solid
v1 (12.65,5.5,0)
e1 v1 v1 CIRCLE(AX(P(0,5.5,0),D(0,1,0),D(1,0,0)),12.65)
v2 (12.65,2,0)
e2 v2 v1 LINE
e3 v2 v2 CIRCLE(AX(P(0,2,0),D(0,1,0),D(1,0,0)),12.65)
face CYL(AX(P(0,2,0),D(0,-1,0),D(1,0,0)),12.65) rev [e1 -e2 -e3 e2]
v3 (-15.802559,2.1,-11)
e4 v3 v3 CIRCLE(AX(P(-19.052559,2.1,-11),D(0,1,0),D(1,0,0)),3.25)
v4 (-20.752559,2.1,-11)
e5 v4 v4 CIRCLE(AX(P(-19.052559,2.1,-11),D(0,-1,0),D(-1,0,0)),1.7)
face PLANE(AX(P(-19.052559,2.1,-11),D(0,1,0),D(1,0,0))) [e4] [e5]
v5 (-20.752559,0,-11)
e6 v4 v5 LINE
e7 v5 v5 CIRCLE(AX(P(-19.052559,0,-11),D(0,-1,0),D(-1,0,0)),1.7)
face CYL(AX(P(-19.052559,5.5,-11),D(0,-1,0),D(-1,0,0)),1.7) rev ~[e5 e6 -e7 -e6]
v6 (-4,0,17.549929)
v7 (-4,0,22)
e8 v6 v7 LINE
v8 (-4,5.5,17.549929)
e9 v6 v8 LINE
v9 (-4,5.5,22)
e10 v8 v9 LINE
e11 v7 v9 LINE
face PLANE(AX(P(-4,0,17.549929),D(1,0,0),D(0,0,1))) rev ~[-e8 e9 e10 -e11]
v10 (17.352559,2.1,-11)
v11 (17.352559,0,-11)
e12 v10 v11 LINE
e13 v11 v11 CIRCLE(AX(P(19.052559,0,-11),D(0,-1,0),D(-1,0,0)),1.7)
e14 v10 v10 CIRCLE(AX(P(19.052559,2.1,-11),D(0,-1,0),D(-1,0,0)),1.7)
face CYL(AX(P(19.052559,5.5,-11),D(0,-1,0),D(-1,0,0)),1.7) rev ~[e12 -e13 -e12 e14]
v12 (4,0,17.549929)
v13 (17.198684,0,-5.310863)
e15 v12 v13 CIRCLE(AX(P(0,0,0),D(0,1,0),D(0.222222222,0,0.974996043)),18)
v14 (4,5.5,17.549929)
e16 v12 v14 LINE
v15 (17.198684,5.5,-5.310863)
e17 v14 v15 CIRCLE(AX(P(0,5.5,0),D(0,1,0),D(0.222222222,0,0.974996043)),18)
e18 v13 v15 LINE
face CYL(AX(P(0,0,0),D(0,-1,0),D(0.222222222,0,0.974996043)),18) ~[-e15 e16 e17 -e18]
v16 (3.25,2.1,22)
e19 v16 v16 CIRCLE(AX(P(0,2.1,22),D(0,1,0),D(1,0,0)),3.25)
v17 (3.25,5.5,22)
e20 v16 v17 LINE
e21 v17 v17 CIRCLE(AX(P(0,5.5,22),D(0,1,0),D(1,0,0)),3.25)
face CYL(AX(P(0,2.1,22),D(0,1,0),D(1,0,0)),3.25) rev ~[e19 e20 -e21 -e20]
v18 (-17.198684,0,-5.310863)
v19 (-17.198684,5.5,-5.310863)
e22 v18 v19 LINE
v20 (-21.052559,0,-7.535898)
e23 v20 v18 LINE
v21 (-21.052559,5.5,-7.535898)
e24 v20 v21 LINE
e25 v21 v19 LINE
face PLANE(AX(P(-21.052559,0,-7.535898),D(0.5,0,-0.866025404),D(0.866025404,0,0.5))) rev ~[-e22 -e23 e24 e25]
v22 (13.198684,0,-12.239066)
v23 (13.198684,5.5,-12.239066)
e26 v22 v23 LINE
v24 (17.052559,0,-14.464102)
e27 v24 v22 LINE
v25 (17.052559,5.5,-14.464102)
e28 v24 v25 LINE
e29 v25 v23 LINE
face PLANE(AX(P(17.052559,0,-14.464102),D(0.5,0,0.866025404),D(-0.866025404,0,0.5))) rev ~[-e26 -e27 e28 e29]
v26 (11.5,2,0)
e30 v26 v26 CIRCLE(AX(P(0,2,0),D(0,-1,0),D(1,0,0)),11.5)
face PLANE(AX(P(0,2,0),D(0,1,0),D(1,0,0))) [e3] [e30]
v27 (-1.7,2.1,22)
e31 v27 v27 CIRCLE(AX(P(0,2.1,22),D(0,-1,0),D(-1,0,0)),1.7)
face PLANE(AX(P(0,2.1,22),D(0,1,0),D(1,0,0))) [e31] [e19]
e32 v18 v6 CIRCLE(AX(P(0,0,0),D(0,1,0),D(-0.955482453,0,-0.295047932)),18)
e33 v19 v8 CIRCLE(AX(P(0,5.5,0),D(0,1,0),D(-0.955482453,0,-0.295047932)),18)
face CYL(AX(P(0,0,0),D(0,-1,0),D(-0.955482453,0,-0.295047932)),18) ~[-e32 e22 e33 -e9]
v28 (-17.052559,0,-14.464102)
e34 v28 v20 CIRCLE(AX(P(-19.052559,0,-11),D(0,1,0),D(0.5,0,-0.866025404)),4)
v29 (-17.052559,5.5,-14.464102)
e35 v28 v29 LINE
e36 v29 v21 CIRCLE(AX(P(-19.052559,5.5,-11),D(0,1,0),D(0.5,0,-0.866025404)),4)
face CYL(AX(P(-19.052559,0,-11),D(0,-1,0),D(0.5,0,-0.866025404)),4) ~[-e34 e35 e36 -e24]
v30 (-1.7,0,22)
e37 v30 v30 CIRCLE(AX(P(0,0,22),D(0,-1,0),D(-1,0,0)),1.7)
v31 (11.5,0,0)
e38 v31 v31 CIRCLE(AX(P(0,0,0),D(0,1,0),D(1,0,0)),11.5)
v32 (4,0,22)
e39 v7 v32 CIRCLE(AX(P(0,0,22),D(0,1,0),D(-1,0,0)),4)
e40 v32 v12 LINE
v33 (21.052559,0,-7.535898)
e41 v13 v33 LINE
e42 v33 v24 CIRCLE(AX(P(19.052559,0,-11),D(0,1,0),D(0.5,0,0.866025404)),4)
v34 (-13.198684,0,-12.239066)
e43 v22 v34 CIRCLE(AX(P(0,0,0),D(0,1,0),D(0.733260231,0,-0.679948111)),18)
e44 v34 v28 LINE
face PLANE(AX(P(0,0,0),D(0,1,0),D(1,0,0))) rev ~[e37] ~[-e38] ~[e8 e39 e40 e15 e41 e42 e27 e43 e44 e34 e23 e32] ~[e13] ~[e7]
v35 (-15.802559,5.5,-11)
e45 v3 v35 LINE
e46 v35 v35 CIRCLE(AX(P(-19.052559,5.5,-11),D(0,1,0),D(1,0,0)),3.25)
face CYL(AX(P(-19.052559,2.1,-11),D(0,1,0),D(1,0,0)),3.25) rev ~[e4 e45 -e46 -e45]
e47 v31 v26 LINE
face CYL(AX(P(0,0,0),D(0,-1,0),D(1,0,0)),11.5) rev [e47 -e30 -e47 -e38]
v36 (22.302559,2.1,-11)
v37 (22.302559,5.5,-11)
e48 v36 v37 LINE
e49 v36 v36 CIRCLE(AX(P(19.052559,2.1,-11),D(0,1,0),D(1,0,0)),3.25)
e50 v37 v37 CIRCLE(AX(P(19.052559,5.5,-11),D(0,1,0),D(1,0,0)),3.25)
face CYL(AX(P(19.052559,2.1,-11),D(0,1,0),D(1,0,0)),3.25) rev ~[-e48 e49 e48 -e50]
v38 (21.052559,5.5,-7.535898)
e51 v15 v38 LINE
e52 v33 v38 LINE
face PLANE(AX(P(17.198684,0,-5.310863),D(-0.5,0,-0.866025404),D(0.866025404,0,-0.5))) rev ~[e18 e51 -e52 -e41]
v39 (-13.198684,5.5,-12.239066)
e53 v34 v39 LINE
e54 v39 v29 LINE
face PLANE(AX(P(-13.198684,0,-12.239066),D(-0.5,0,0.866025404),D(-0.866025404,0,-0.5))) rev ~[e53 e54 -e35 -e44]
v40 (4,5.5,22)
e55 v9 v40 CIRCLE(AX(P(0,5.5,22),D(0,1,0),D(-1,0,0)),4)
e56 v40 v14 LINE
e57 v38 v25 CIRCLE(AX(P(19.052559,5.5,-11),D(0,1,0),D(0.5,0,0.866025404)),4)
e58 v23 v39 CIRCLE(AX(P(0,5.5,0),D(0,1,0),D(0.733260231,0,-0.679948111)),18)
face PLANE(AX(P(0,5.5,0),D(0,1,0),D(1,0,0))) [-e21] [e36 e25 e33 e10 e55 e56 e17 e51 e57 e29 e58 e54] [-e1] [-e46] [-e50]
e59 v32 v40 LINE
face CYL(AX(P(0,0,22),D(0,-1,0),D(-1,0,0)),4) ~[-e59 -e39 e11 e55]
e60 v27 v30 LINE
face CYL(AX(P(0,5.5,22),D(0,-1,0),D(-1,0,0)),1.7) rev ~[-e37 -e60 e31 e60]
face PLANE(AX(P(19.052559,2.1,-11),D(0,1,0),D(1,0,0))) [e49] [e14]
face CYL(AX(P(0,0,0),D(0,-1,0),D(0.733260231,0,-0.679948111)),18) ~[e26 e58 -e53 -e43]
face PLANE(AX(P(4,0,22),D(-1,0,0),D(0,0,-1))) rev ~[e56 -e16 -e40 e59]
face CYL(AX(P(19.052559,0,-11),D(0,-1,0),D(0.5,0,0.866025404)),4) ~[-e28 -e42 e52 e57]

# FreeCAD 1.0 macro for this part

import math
import FreeCAD as App
import Part
import Sketcher
from FreeCAD import Vector
Q = App.Units.Quantity

doc = App.newDocument("Part")
body = doc.addObject("PartDesign::Body", "Body")

sketch1 = body.newObject("Sketcher::SketchObject", "Sketch")
sketch1.AttachmentSupport = (doc.getObject("XZ_Plane"), [""])
sketch1.MapMode = "FlatFace"
sketch1.addGeometry(Part.ArcOfCircle(Part.Circle(Vector(0, 22, 0), Vector(0, 0, 1), 4), math.radians(0), math.radians(180)), False)
sketch1.addGeometry(Part.LineSegment(Vector(4, 22, 0), Vector(4, 17.5, 0)), False)
sketch1.addGeometry(Part.ArcOfCircle(Part.Circle(Vector(0, 0, 0), Vector(0, 0, 1), 18), math.radians(-17), math.radians(77)), False)
sketch1.addGeometry(Part.LineSegment(Vector(17.2, -5.3, 0), Vector(21.1, -7.5, 0)), False)
sketch1.addGeometry(Part.ArcOfCircle(Part.Circle(Vector(19.1, -11, 0), Vector(0, 0, 1), 4), math.radians(-120), math.radians(60)), False)
sketch1.addGeometry(Part.LineSegment(Vector(17.1, -14.5, 0), Vector(13.2, -12.2, 0)), False)
sketch1.addGeometry(Part.ArcOfCircle(Part.Circle(Vector(0, 0, 0), Vector(0, 0, 1), 18), math.radians(-137), math.radians(-43)), False)
sketch1.addGeometry(Part.LineSegment(Vector(-13.2, -12.2, 0), Vector(-17.1, -14.5, 0)), False)
sketch1.addGeometry(Part.ArcOfCircle(Part.Circle(Vector(-19.1, -11, 0), Vector(0, 0, 1), 4), math.radians(120), math.radians(300)), False)
sketch1.addGeometry(Part.LineSegment(Vector(-21.1, -7.5, 0), Vector(-17.2, -5.3, 0)), False)
sketch1.addGeometry(Part.ArcOfCircle(Part.Circle(Vector(0, 0, 0), Vector(0, 0, 1), 18), math.radians(103), math.radians(197)), False)
sketch1.addGeometry(Part.LineSegment(Vector(-4, 17.5, 0), Vector(-4, 22, 0)), False)
sketch1.addGeometry(Part.Circle(Vector(0, 0, 0), Vector(0, 0, 1), 11.5), False)
sketch1.addConstraint(Sketcher.Constraint("Tangent", 0, 1, 1, 1))
sketch1.addConstraint(Sketcher.Constraint("Coincident", 1, 2, 2, 2))
sketch1.addConstraint(Sketcher.Constraint("Coincident", 2, 1, 3, 1))
sketch1.addConstraint(Sketcher.Constraint("Tangent", 3, 2, 4, 2))
sketch1.addConstraint(Sketcher.Constraint("Tangent", 4, 1, 5, 1))
sketch1.addConstraint(Sketcher.Constraint("Coincident", 5, 2, 6, 2))
sketch1.addConstraint(Sketcher.Constraint("Coincident", 6, 1, 7, 1))
sketch1.addConstraint(Sketcher.Constraint("Tangent", 7, 2, 8, 2))
sketch1.addConstraint(Sketcher.Constraint("Tangent", 8, 1, 9, 1))
sketch1.addConstraint(Sketcher.Constraint("Coincident", 9, 2, 10, 2))
sketch1.addConstraint(Sketcher.Constraint("Coincident", 10, 1, 11, 1))
sketch1.addConstraint(Sketcher.Constraint("Tangent", 11, 2, 0, 2))
sketch1.addConstraint(Sketcher.Constraint("Vertical", 1))
sketch1.addConstraint(Sketcher.Constraint("Vertical", 11))
sketch1.addConstraint(Sketcher.Constraint("Coincident", 2, 3, -1, 1))
sketch1.addConstraint(Sketcher.Constraint("Coincident", 6, 3, -1, 1))
sketch1.addConstraint(Sketcher.Constraint("Coincident", 10, 3, -1, 1))
sketch1.addConstraint(Sketcher.Constraint("Coincident", 12, 3, -1, 1))
sketch1.addConstraint(Sketcher.Constraint("Equal", 0, 4))
sketch1.addConstraint(Sketcher.Constraint("Equal", 2, 6))
sketch1.addConstraint(Sketcher.Constraint("Equal", 4, 8))
sketch1.addConstraint(Sketcher.Constraint("Equal", 6, 10))
sketch1.addConstraint(Sketcher.Constraint("Symmetric", 4, 3, 8, 3, -2))
sketch1.addConstraint(Sketcher.Constraint("PointOnObject", 0, 3, -2))
sketch1.addConstraint(Sketcher.Constraint("Parallel", 3, 5))
sketch1.addConstraint(Sketcher.Constraint("Parallel", 7, 9))
sketch1.addConstraint(Sketcher.Constraint("Horizontal", 5, 2, 6, 1))
sketch1.addConstraint(Sketcher.Constraint("Equal", 3, 5))
sketch1.addConstraint(Sketcher.Constraint("Diameter", 12, 23.0))
sketch1.addConstraint(Sketcher.Constraint("Radius", 0, 4.0))
sketch1.addConstraint(Sketcher.Constraint("Radius", 2, 18.0))
sketch1.addConstraint(Sketcher.Constraint("Angle", 3, Q("-30 deg")))
sketch1.addConstraint(Sketcher.Constraint("DistanceY", -1, 1, 0, 3, 22.0))
sketch1.addConstraint(Sketcher.Constraint("DistanceY", 4, 3, -1, 1, 11.0))
pad1 = body.newObject("PartDesign::Pad", "Pad")
pad1.Profile = sketch1
pad1.Length = 5.5
pad1.Reversed = True

sketch2 = body.newObject("Sketcher::SketchObject", "Sketch001")
sketch2.AttachmentSupport = (doc.getObject("XZ_Plane"), [""])
sketch2.MapMode = "FlatFace"
sketch2.AttachmentOffset = App.Placement(Vector(0, 0, -2), App.Rotation())
sketch2.addGeometry(Part.Circle(Vector(0, 0, 0), Vector(0, 0, 1), 13), False)
sketch2.addConstraint(Sketcher.Constraint("Coincident", 0, 3, -1, 1))
sketch2.addConstraint(Sketcher.Constraint("Diameter", 0, 25.3))
pocket1 = body.newObject("PartDesign::Pocket", "Pocket")
pocket1.Profile = sketch2
pocket1.Length = 3.5

sketch3 = body.newObject("Sketcher::SketchObject", "Sketch002")
sketch3.AttachmentSupport = (doc.getObject("XZ_Plane"), [""])
sketch3.MapMode = "FlatFace"
sketch3.AttachmentOffset = App.Placement(Vector(0, 0, -5.5), App.Rotation())
sketch3.addGeometry(Part.Circle(Vector(-19.1, -11, 0), Vector(0, 0, 1), 1.7), False)
sketch3.addGeometry(Part.Circle(Vector(19.1, -11, 0), Vector(0, 0, 1), 1.7), False)
sketch3.addGeometry(Part.Circle(Vector(0, 22, 0), Vector(0, 0, 1), 1.7), False)
sketch3.addConstraint(Sketcher.Constraint("Equal", 0, 1))
sketch3.addConstraint(Sketcher.Constraint("Equal", 1, 2))
sketch3.addConstraint(Sketcher.Constraint("Symmetric", 0, 3, 1, 3, -2))
sketch3.addConstraint(Sketcher.Constraint("PointOnObject", 2, 3, -2))
sketch3.addConstraint(Sketcher.Constraint("Diameter", 0, 3.4))
sketch3.addConstraint(Sketcher.Constraint("DistanceY", 0, 3, -1, 1, 11.0))
sketch3.addConstraint(Sketcher.Constraint("DistanceY", -1, 1, 2, 3, 22.0))
sketch3.addConstraint(Sketcher.Constraint("DistanceX", 0, 3, -1, 1, 19.052559))
doc.recompute()
hole = body.newObject("PartDesign::Hole", "Hole")
hole.Profile = sketch3
hole.ThreadType = "None"
hole.Diameter = 3.4
hole.DepthType = "Dimension"
hole.Depth = 45
hole.DrillPoint = "Angled"
hole.DrillPointAngle = 118
hole.HoleCutType = "Counterbore"
hole.HoleCutDiameter = 6.5
hole.HoleCutDepth = 3.4
hole.Reversed = True

doc.recompute()
